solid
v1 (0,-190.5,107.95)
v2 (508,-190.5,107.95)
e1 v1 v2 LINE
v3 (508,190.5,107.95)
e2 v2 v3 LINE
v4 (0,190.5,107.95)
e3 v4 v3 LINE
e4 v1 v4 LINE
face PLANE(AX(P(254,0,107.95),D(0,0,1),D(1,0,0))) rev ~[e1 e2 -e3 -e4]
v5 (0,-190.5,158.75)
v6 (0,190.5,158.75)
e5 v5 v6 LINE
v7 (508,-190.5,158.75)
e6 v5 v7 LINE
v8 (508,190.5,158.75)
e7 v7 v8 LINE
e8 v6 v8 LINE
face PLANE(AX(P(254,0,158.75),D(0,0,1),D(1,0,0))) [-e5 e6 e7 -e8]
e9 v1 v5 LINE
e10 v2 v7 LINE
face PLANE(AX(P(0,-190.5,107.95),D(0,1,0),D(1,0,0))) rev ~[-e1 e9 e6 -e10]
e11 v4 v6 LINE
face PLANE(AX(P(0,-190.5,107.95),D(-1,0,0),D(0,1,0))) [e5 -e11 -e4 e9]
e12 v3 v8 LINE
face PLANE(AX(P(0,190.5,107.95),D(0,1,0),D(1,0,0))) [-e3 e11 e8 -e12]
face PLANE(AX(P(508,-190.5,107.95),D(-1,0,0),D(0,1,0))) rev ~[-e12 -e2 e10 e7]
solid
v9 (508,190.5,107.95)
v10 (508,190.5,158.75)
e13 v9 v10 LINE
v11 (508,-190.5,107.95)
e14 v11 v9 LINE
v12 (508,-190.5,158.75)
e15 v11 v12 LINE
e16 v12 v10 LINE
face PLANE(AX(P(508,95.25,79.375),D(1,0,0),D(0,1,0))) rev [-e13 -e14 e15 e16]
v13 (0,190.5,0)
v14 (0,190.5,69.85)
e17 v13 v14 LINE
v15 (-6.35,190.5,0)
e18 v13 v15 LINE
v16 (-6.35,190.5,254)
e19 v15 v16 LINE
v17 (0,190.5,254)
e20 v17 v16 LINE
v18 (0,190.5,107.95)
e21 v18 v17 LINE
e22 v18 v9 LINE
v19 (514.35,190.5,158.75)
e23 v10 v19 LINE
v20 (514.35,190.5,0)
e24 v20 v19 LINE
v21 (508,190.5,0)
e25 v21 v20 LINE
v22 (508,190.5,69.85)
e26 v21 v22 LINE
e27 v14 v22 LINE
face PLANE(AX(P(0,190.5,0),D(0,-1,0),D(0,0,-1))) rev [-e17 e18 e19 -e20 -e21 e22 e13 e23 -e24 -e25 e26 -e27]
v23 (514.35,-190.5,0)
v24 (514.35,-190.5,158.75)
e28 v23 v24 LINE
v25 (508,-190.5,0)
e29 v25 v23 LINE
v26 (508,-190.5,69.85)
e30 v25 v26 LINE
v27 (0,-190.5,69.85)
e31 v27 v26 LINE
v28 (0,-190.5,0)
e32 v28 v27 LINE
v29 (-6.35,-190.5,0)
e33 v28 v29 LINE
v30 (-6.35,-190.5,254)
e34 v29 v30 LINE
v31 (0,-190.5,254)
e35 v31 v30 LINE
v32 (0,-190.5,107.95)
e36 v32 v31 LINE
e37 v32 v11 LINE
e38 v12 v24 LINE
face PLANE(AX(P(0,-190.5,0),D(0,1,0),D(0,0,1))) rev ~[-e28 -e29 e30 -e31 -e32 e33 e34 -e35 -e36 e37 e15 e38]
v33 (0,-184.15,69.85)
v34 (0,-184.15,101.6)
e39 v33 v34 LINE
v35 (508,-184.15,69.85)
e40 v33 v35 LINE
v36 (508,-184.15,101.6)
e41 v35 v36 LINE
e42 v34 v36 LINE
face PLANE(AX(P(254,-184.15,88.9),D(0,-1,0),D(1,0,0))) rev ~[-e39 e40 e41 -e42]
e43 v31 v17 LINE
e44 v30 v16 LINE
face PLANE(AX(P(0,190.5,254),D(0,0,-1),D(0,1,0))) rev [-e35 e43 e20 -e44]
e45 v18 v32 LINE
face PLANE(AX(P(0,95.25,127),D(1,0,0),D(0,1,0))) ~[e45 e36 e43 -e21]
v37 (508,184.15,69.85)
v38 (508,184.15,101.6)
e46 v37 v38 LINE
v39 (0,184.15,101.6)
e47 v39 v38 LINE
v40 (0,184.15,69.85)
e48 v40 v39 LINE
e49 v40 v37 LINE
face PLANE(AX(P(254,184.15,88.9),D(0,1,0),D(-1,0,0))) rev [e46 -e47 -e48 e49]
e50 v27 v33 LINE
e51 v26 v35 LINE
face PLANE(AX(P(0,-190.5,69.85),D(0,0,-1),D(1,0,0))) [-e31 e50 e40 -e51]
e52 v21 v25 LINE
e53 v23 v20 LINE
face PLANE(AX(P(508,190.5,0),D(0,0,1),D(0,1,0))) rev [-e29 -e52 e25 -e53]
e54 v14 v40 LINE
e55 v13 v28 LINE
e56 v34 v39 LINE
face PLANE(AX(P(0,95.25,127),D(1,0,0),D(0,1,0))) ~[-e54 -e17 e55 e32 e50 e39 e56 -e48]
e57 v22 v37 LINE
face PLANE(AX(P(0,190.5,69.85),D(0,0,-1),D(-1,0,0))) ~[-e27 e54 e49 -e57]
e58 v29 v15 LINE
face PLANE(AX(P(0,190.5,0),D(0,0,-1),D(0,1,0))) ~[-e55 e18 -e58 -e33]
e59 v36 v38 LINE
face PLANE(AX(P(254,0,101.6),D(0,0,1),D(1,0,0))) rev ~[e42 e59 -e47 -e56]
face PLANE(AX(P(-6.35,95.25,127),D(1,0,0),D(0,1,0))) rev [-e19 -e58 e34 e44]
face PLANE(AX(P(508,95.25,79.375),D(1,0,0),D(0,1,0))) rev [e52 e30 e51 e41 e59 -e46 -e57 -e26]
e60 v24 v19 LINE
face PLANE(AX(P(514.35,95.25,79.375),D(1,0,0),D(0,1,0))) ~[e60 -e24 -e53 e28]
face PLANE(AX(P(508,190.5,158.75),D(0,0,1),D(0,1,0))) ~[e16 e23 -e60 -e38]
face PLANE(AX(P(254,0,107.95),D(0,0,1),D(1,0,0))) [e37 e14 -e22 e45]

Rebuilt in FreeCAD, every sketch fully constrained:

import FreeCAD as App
import Part
import Sketcher

V = App.Vector
Q = App.Units.Quantity

doc = App.newDocument("Part")
params = doc.addObject("Spreadsheet::Sheet", "Params")
for row, (alias, value) in enumerate([
    ("sketch1_width", "7.5 in"),
    ("sketch1_height", "6.25 in"),
    ("pad1_length", "0.25 in"),
    ("sketch2_height", "10 in"),
    ("sketch2_width", "7.5 in"),
    ("pad2_length", "0.25 in"),
    ("sketch3_width", "20 in"),
    ("sketch3_height", "1.5 in"),
    ("pad3_length", "0.25 in"),
    ("sketch4_width", "20 in"),
    ("sketch4_height", "14.5 in"),
    ("pad4_length", "0.25 in"),
    ("sketch5_width", "20 in"),
    ("sketch5_height", "15 in"),
    ("pad5_length", "2 in"),
], start=1):
    params.set(f"A{row}", alias)
    params.set(f"B{row}", "=" + value)
    params.setAlias(f"B{row}", alias)

body = doc.addObject("PartDesign::Body", "Body")

# Sketch on YZ plane
sketch1 = body.newObject("Sketcher::SketchObject", "Sketch")
sketch1.AttachmentSupport = (doc.getObject("YZ_Plane"), [""])
sketch1.MapMode = "FlatFace"
sketch1.AttachmentOffset = App.Placement(V(0, 0, 20 * 25.4), App.Rotation())
sketch1.addGeometry([
    Part.LineSegment(V(-190, 159, 0), V(-190, 0, 0)),
    Part.LineSegment(V(-190, 0, 0), V(0, 0, 0)),
    Part.LineSegment(V(0, 0, 0), V(0, 159, 0)),
    Part.LineSegment(V(0, 159, 0), V(-190, 159, 0)),
], False)
sketch1.addConstraint([
    Sketcher.Constraint("Coincident", 0, 2, 1, 1),
    Sketcher.Constraint("Coincident", 1, 2, 2, 1),
    Sketcher.Constraint("Coincident", 2, 2, 3, 1),
    Sketcher.Constraint("Coincident", 3, 2, 0, 1),
    Sketcher.Constraint("Vertical", 0),
    Sketcher.Constraint("Horizontal", 1),
    Sketcher.Constraint("Vertical", 2),
    Sketcher.Constraint("Horizontal", 3),
    Sketcher.Constraint("Coincident", 1, 2, -1, 1),
    Sketcher.Constraint("DistanceX", 1, 1, 1, 2, Q("7.5 in")),
    Sketcher.Constraint("DistanceY", 0, 2, 0, 1, Q("6.25 in")),
])
sketch1.setExpression("Constraints[9]", "Params.sketch1_width")
sketch1.setExpression("Constraints[10]", "Params.sketch1_height")
pad1 = body.newObject("PartDesign::Pad", "Pad")
pad1.Profile = sketch1
pad1.setExpression("Length", "Params.pad1_length")
body2 = doc.addObject("PartDesign::Body", "Body001")

# Sketch on YZ plane
sketch2 = body2.newObject("Sketcher::SketchObject", "Sketch001")
sketch2.AttachmentSupport = (doc.getObject("YZ_Plane001"), [""])
sketch2.MapMode = "FlatFace"
sketch2.addGeometry([
    Part.LineSegment(V(-190, 254, 0), V(-190, 0, 0)),
    Part.LineSegment(V(-190, 0, 0), V(0, 0, 0)),
    Part.LineSegment(V(0, 0, 0), V(0, 254, 0)),
    Part.LineSegment(V(0, 254, 0), V(-190, 254, 0)),
], False)
sketch2.addConstraint([
    Sketcher.Constraint("Coincident", 0, 2, 1, 1),
    Sketcher.Constraint("Coincident", 1, 2, 2, 1),
    Sketcher.Constraint("Coincident", 2, 2, 3, 1),
    Sketcher.Constraint("Coincident", 3, 2, 0, 1),
    Sketcher.Constraint("Vertical", 0),
    Sketcher.Constraint("Horizontal", 1),
    Sketcher.Constraint("Vertical", 2),
    Sketcher.Constraint("Horizontal", 3),
    Sketcher.Constraint("Coincident", 1, 2, -1, 1),
    Sketcher.Constraint("DistanceY", 0, 2, 0, 1, Q("10 in")),
    Sketcher.Constraint("DistanceX", 1, 1, 1, 2, Q("7.5 in")),
])
sketch2.setExpression("Constraints[9]", "Params.sketch2_height")
sketch2.setExpression("Constraints[10]", "Params.sketch2_width")
pad2 = body2.newObject("PartDesign::Pad", "Pad001")
pad2.Profile = sketch2
pad2.setExpression("Length", "Params.pad2_length")
pad2.Reversed = True
body.AllowCompound = True
doc.recompute()

boolean = body.newObject("PartDesign::Boolean", "Boolean")
boolean.Type = "Fuse"
boolean.addObjects([body2])

# Sketch on XZ plane
sketch3 = body.newObject("Sketcher::SketchObject", "Sketch002")
sketch3.AttachmentSupport = (doc.getObject("XZ_Plane"), [""])
sketch3.MapMode = "FlatFace"
sketch3.AttachmentOffset = App.Placement(V(0, 0, 7.5 * 25.4), App.Rotation())
sketch3.addGeometry([
    Part.LineSegment(V(0, 108, 0), V(0, 70, 0)),
    Part.LineSegment(V(0, 70, 0), V(508, 70, 0)),
    Part.LineSegment(V(508, 70, 0), V(508, 108, 0)),
    Part.LineSegment(V(508, 108, 0), V(0, 108, 0)),
], False)
sketch3.addConstraint([
    Sketcher.Constraint("Coincident", 0, 2, 1, 1),
    Sketcher.Constraint("Coincident", 1, 2, 2, 1),
    Sketcher.Constraint("Coincident", 2, 2, 3, 1),
    Sketcher.Constraint("Coincident", 3, 2, 0, 1),
    Sketcher.Constraint("Vertical", 0),
    Sketcher.Constraint("Horizontal", 1),
    Sketcher.Constraint("Vertical", 2),
    Sketcher.Constraint("Horizontal", 3),
    Sketcher.Constraint("PointOnObject", 0, 2, -2),
    Sketcher.Constraint("DistanceX", 1, 1, 1, 2, Q("20 in")),
    Sketcher.Constraint("DistanceY", 0, 2, 0, 1, Q("1.5 in")),
    Sketcher.Constraint("DistanceY", -1, 1, 0, 2, Q("2.75 in")),
])
sketch3.setExpression("Constraints[9]", "Params.sketch3_width")
sketch3.setExpression("Constraints[10]", "Params.sketch3_height")
pad3 = body.newObject("PartDesign::Pad", "Pad002")
pad3.Profile = sketch3
pad3.setExpression("Length", "Params.pad3_length")
pad3.Reversed = True
body3 = doc.addObject("PartDesign::Body", "Body002")
doc.recompute()

body3.BaseFeature = body
doc.recompute()

mirroring = doc.addObject("Part::Mirroring", "Mirroring")
mirroring.Source = body
mirroring.Base = V(0, 0, 0)
mirroring.Normal = V(0, -1, 0)
body4 = doc.addObject("PartDesign::Body", "Body003")
body4.BaseFeature = mirroring
boolean2 = body3.newObject("PartDesign::Boolean", "Boolean001")
boolean2.Type = "Fuse"
boolean2.addObjects([body4])
doc.recompute()

# Sketch on XY plane
sketch4 = body3.newObject("Sketcher::SketchObject", "Sketch003")
sketch4.AttachmentSupport = (doc.getObject("XY_Plane002"), [""])
sketch4.MapMode = "FlatFace"
sketch4.AttachmentOffset = App.Placement(V(0, 0, 4.25 * 25.4), App.Rotation())
sketch4.addGeometry([
    Part.LineSegment(V(0, 184, 0), V(0, -184, 0)),
    Part.LineSegment(V(0, -184, 0), V(508, -184, 0)),
    Part.LineSegment(V(508, -184, 0), V(508, 184, 0)),
    Part.LineSegment(V(508, 184, 0), V(0, 184, 0)),
], False)
sketch4.addConstraint([
    Sketcher.Constraint("Coincident", 0, 2, 1, 1),
    Sketcher.Constraint("Coincident", 1, 2, 2, 1),
    Sketcher.Constraint("Coincident", 2, 2, 3, 1),
    Sketcher.Constraint("Coincident", 3, 2, 0, 1),
    Sketcher.Constraint("Vertical", 0),
    Sketcher.Constraint("Horizontal", 1),
    Sketcher.Constraint("Vertical", 2),
    Sketcher.Constraint("Horizontal", 3),
    Sketcher.Constraint("Symmetric", 0, 2, 3, 2, -1, 1),
    Sketcher.Constraint("DistanceX", 1, 1, 1, 2, Q("20 in")),
    Sketcher.Constraint("DistanceY", 0, 2, 0, 1, Q("14.5 in")),
])
sketch4.setExpression("Constraints[9]", "Params.sketch4_width")
sketch4.setExpression("Constraints[10]", "Params.sketch4_height")
pad4 = body3.newObject("PartDesign::Pad", "Pad003")
pad4.Profile = sketch4
pad4.setExpression("Length", "Params.pad4_length")
pad4.Reversed = True
body5 = doc.addObject("PartDesign::Body", "Body004")

# Sketch on XY plane
sketch5 = body5.newObject("Sketcher::SketchObject", "Sketch004")
sketch5.AttachmentSupport = (doc.getObject("XY_Plane004"), [""])
sketch5.MapMode = "FlatFace"
sketch5.AttachmentOffset = App.Placement(V(0, 0, 4.25 * 25.4), App.Rotation())
sketch5.addGeometry([
    Part.LineSegment(V(0, 190, 0), V(0, -190, 0)),
    Part.LineSegment(V(0, -190, 0), V(508, -190, 0)),
    Part.LineSegment(V(508, -190, 0), V(508, 190, 0)),
    Part.LineSegment(V(508, 190, 0), V(0, 190, 0)),
], False)
sketch5.addConstraint([
    Sketcher.Constraint("Coincident", 0, 2, 1, 1),
    Sketcher.Constraint("Coincident", 1, 2, 2, 1),
    Sketcher.Constraint("Coincident", 2, 2, 3, 1),
    Sketcher.Constraint("Coincident", 3, 2, 0, 1),
    Sketcher.Constraint("Vertical", 0),
    Sketcher.Constraint("Horizontal", 1),
    Sketcher.Constraint("Vertical", 2),
    Sketcher.Constraint("Horizontal", 3),
    Sketcher.Constraint("Symmetric", 0, 2, 3, 2, -1, 1),
    Sketcher.Constraint("DistanceX", 1, 1, 1, 2, Q("20 in")),
    Sketcher.Constraint("DistanceY", 0, 2, 0, 1, Q("15 in")),
])
sketch5.setExpression("Constraints[9]", "Params.sketch5_width")
sketch5.setExpression("Constraints[10]", "Params.sketch5_height")
pad5 = body5.newObject("PartDesign::Pad", "Pad004")
pad5.Profile = sketch5
pad5.setExpression("Length", "Params.pad5_length")
mirroring.Visibility = False

doc.recompute()
